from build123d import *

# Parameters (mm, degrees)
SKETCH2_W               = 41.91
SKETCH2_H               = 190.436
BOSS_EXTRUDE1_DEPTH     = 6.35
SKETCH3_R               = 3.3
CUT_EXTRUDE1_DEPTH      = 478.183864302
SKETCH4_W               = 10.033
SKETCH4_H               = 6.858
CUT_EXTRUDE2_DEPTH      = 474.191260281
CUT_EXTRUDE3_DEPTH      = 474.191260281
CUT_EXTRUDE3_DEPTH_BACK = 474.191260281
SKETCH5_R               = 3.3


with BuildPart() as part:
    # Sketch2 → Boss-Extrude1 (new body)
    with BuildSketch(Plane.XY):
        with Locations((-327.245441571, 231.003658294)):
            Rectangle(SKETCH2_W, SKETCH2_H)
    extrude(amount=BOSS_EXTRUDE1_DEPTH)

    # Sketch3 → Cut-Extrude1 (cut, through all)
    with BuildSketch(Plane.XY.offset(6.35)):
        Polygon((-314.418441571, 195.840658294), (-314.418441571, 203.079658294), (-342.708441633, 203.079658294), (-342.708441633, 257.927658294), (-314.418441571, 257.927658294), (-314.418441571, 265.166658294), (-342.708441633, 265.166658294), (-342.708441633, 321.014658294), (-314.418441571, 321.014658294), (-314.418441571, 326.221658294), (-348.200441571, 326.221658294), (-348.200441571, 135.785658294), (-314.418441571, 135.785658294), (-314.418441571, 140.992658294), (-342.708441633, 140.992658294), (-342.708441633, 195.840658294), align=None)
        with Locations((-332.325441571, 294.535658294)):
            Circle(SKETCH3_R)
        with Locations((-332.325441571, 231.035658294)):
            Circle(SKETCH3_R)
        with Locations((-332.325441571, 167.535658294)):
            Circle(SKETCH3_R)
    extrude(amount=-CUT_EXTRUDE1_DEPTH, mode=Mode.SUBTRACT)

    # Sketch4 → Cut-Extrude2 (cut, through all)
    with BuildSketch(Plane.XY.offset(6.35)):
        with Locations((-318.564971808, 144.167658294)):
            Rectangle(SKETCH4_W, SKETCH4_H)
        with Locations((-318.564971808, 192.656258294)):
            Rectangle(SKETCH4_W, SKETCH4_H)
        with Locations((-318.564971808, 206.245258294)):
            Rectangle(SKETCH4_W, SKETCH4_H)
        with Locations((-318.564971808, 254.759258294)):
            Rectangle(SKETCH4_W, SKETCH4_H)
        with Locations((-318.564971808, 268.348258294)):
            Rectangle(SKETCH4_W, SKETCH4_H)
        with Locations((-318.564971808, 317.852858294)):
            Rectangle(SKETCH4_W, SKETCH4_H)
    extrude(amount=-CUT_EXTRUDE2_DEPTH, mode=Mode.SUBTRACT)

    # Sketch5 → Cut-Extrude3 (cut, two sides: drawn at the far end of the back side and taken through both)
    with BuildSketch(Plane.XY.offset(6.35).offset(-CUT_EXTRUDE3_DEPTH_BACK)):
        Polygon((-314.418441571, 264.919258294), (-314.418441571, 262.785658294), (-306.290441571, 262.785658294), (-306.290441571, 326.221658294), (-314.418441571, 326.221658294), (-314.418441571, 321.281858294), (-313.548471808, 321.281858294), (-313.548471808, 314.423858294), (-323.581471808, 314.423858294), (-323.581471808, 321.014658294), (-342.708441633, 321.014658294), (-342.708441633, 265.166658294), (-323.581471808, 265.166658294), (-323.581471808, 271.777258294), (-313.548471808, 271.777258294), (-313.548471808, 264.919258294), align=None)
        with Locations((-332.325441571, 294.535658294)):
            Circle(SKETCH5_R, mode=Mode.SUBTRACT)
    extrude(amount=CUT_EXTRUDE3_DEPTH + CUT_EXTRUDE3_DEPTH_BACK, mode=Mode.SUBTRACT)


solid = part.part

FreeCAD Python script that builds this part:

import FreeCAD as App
import Part
import Sketcher
from FreeCAD import Vector
Q = App.Units.Quantity

doc = App.newDocument("Part")
body = doc.addObject("PartDesign::Body", "Body")

# Sketch on XY plane
sketch1 = doc.addObject("Sketcher::SketchObject", "Sketch")
body.addObject(sketch1)
sketch1.AttachmentSupport = (doc.XY_Plane, [""])
sketch1.MapMode = "FlatFace"
sketch1.addGeometry(Part.LineSegment(Vector(-348, 326, 0), Vector(-348, 136, 0)), False)
sketch1.addGeometry(Part.LineSegment(Vector(-348, 136, 0), Vector(-306, 136, 0)), False)
sketch1.addGeometry(Part.LineSegment(Vector(-306, 136, 0), Vector(-306, 326, 0)), False)
sketch1.addGeometry(Part.LineSegment(Vector(-306, 326, 0), Vector(-348, 326, 0)), False)
sketch1.addConstraint(Sketcher.Constraint("Coincident", 0, 2, 1, 1))
sketch1.addConstraint(Sketcher.Constraint("Coincident", 1, 2, 2, 1))
sketch1.addConstraint(Sketcher.Constraint("Coincident", 2, 2, 3, 1))
sketch1.addConstraint(Sketcher.Constraint("Coincident", 3, 2, 0, 1))
sketch1.addConstraint(Sketcher.Constraint("Vertical", 0))
sketch1.addConstraint(Sketcher.Constraint("Horizontal", 1))
sketch1.addConstraint(Sketcher.Constraint("Vertical", 2))
sketch1.addConstraint(Sketcher.Constraint("Horizontal", 3))
sketch1.addConstraint(Sketcher.Constraint("DistanceX", 1, 1, 1, 2, Q("1.65 in")))
sketch1.addConstraint(Sketcher.Constraint("DistanceY", 0, 2, 0, 1, Q("190.436 mm")))
sketch1.addConstraint(Sketcher.Constraint("DistanceX", 0, 2, -1, 1, Q("348.200442 mm")))
sketch1.addConstraint(Sketcher.Constraint("DistanceY", -1, 1, 0, 2, Q("135.785658 mm")))
pad1 = doc.addObject("PartDesign::Pad", "Pad")
body.addObject(pad1)
pad1.Profile = sketch1
pad1.Length = Q("0.25 in")

# Sketch on XY plane
sketch2 = doc.addObject("Sketcher::SketchObject", "Sketch001")
body.addObject(sketch2)
sketch2.AttachmentSupport = (doc.XY_Plane, [""])
sketch2.MapMode = "FlatFace"
sketch2.AttachmentOffset = App.Placement(Vector(0, 0, 0.25 * 25.4), App.Rotation())
sketch2.addGeometry(Part.LineSegment(Vector(-314.4, 195.8, 0), Vector(-314.4, 203.1, 0)), False)
sketch2.addGeometry(Part.LineSegment(Vector(-314.4, 203.1, 0), Vector(-342.7, 203.1, 0)), False)
sketch2.addGeometry(Part.LineSegment(Vector(-342.7, 203.1, 0), Vector(-342.7, 257.9, 0)), False)
sketch2.addGeometry(Part.LineSegment(Vector(-342.7, 257.9, 0), Vector(-314.4, 257.9, 0)), False)
sketch2.addGeometry(Part.LineSegment(Vector(-314.4, 257.9, 0), Vector(-314.4, 265.2, 0)), False)
sketch2.addGeometry(Part.LineSegment(Vector(-314.4, 265.2, 0), Vector(-342.7, 265.2, 0)), False)
sketch2.addGeometry(Part.LineSegment(Vector(-342.7, 265.2, 0), Vector(-342.7, 321, 0)), False)
sketch2.addGeometry(Part.LineSegment(Vector(-342.7, 321, 0), Vector(-314.4, 321, 0)), False)
sketch2.addGeometry(Part.LineSegment(Vector(-314.4, 321, 0), Vector(-314.4, 326.2, 0)), False)
sketch2.addGeometry(Part.LineSegment(Vector(-314.4, 326.2, 0), Vector(-348.2, 326.2, 0)), False)
sketch2.addGeometry(Part.LineSegment(Vector(-348.2, 326.2, 0), Vector(-348.2, 135.8, 0)), False)
sketch2.addGeometry(Part.LineSegment(Vector(-348.2, 135.8, 0), Vector(-314.4, 135.8, 0)), False)
sketch2.addGeometry(Part.LineSegment(Vector(-314.4, 135.8, 0), Vector(-314.4, 141, 0)), False)
sketch2.addGeometry(Part.LineSegment(Vector(-314.4, 141, 0), Vector(-342.7, 141, 0)), False)
sketch2.addGeometry(Part.LineSegment(Vector(-342.7, 141, 0), Vector(-342.7, 195.8, 0)), False)
sketch2.addGeometry(Part.LineSegment(Vector(-342.7, 195.8, 0), Vector(-314.4, 195.8, 0)), False)
sketch2.addGeometry(Part.Circle(Vector(-332.3, 294.5, 0), Vector(0, 0, 1), 3.3), False)
sketch2.addGeometry(Part.Circle(Vector(-332.3, 231, 0), Vector(0, 0, 1), 3.3), False)
sketch2.addGeometry(Part.Circle(Vector(-332.3, 167.5, 0), Vector(0, 0, 1), 3.3), False)
sketch2.addConstraint(Sketcher.Constraint("Coincident", 0, 2, 1, 1))
sketch2.addConstraint(Sketcher.Constraint("Coincident", 1, 2, 2, 1))
sketch2.addConstraint(Sketcher.Constraint("Coincident", 2, 2, 3, 1))
sketch2.addConstraint(Sketcher.Constraint("Coincident", 3, 2, 4, 1))
sketch2.addConstraint(Sketcher.Constraint("Coincident", 4, 2, 5, 1))
sketch2.addConstraint(Sketcher.Constraint("Coincident", 5, 2, 6, 1))
sketch2.addConstraint(Sketcher.Constraint("Coincident", 6, 2, 7, 1))
sketch2.addConstraint(Sketcher.Constraint("Coincident", 7, 2, 8, 1))
sketch2.addConstraint(Sketcher.Constraint("Coincident", 8, 2, 9, 1))
sketch2.addConstraint(Sketcher.Constraint("Coincident", 9, 2, 10, 1))
sketch2.addConstraint(Sketcher.Constraint("Coincident", 10, 2, 11, 1))
sketch2.addConstraint(Sketcher.Constraint("Coincident", 11, 2, 12, 1))
sketch2.addConstraint(Sketcher.Constraint("Coincident", 12, 2, 13, 1))
sketch2.addConstraint(Sketcher.Constraint("Coincident", 13, 2, 14, 1))
sketch2.addConstraint(Sketcher.Constraint("Coincident", 14, 2, 15, 1))
sketch2.addConstraint(Sketcher.Constraint("Coincident", 15, 2, 0, 1))
sketch2.addConstraint(Sketcher.Constraint("Vertical", 0))
sketch2.addConstraint(Sketcher.Constraint("Horizontal", 1))
sketch2.addConstraint(Sketcher.Constraint("Vertical", 2))
sketch2.addConstraint(Sketcher.Constraint("Horizontal", 3))
sketch2.addConstraint(Sketcher.Constraint("Vertical", 4))
sketch2.addConstraint(Sketcher.Constraint("Horizontal", 5))
sketch2.addConstraint(Sketcher.Constraint("Vertical", 6))
sketch2.addConstraint(Sketcher.Constraint("Horizontal", 7))
sketch2.addConstraint(Sketcher.Constraint("Vertical", 8))
sketch2.addConstraint(Sketcher.Constraint("Horizontal", 9))
sketch2.addConstraint(Sketcher.Constraint("Vertical", 10))
sketch2.addConstraint(Sketcher.Constraint("Horizontal", 11))
sketch2.addConstraint(Sketcher.Constraint("Vertical", 12))
sketch2.addConstraint(Sketcher.Constraint("Horizontal", 13))
sketch2.addConstraint(Sketcher.Constraint("Vertical", 14))
sketch2.addConstraint(Sketcher.Constraint("Horizontal", 15))
sketch2.addConstraint(Sketcher.Constraint("Equal", 16, 17))
sketch2.addConstraint(Sketcher.Constraint("Equal", 17, 18))
sketch2.addConstraint(Sketcher.Constraint("Vertical", 16, 3, 17, 3))
sketch2.addConstraint(Sketcher.Constraint("Vertical", 17, 3, 18, 3))
sketch2.addConstraint(Sketcher.Constraint("Vertical", 0, 2, 3, 2))
sketch2.addConstraint(Sketcher.Constraint("Vertical", 2, 2, 5, 2))
sketch2.addConstraint(Sketcher.Constraint("Vertical", 4, 2, 7, 2))
sketch2.addConstraint(Sketcher.Constraint("Vertical", 8, 2, 11, 2))
sketch2.addConstraint(Sketcher.Constraint("Vertical", 6, 2, 13, 2))
sketch2.addConstraint(Sketcher.Constraint("Equal", 0, 4))
sketch2.addConstraint(Sketcher.Constraint("Equal", 8, 12))
sketch2.addConstraint(Sketcher.Constraint("Equal", 2, 14))
sketch2.addConstraint(Sketcher.Constraint("DistanceY", 18, 3, 16, 3, Q("5 in")))
sketch2.addConstraint(Sketcher.Constraint("DistanceX", 9, 2, 9, 1, Q("1.33 in")))
sketch2.addConstraint(Sketcher.Constraint("DistanceY", 17, 3, 16, 3, Q("2.5 in")))
sketch2.addConstraint(Sketcher.Constraint("Diameter", 16, Q("6.6 mm")))
sketch2.addConstraint(Sketcher.Constraint("DistanceY", 0, 1, 0, 2, Q("0.285 in")))
sketch2.addConstraint(Sketcher.Constraint("DistanceY", 8, 1, 8, 2, Q("0.205 in")))
sketch2.addConstraint(Sketcher.Constraint("DistanceY", 10, 2, 18, 3, Q("1.25 in")))
sketch2.addConstraint(Sketcher.Constraint("DistanceX", 17, 3, 0, 2, Q("0.705 in")))
sketch2.addConstraint(Sketcher.Constraint("DistanceX", 1, 2, 1, 1, Q("28.29 mm")))
sketch2.addConstraint(Sketcher.Constraint("DistanceY", 2, 1, 2, 2, Q("54.848 mm")))
sketch2.addConstraint(Sketcher.Constraint("DistanceY", 6, 1, 6, 2, Q("55.848 mm")))
sketch2.addConstraint(Sketcher.Constraint("DistanceX", 16, 3, -1, 1, Q("332.325442 mm")))
sketch2.addConstraint(Sketcher.Constraint("DistanceY", -1, 1, 16, 3, Q("294.535658 mm")))
pocket1 = doc.addObject("PartDesign::Pocket", "Pocket")
body.addObject(pocket1)
pocket1.Profile = sketch2
pocket1.Type = "ThroughAll"

# Sketch on XY plane
sketch3 = doc.addObject("Sketcher::SketchObject", "Sketch002")
body.addObject(sketch3)
sketch3.AttachmentSupport = (doc.XY_Plane, [""])
sketch3.MapMode = "FlatFace"
sketch3.AttachmentOffset = App.Placement(Vector(0, 0, 0.25 * 25.4), App.Rotation())
sketch3.addGeometry(Part.LineSegment(Vector(-324, 148, 0), Vector(-324, 141, 0)), False)
sketch3.addGeometry(Part.LineSegment(Vector(-324, 141, 0), Vector(-314, 141, 0)), False)
sketch3.addGeometry(Part.LineSegment(Vector(-314, 141, 0), Vector(-314, 148, 0)), False)
sketch3.addGeometry(Part.LineSegment(Vector(-314, 148, 0), Vector(-324, 148, 0)), False)
sketch3.addGeometry(Part.LineSegment(Vector(-324, 196, 0), Vector(-324, 189, 0)), False)
sketch3.addGeometry(Part.LineSegment(Vector(-324, 189, 0), Vector(-314, 189, 0)), False)
sketch3.addGeometry(Part.LineSegment(Vector(-314, 189, 0), Vector(-314, 196, 0)), False)
sketch3.addGeometry(Part.LineSegment(Vector(-314, 196, 0), Vector(-324, 196, 0)), False)
sketch3.addGeometry(Part.LineSegment(Vector(-324, 210, 0), Vector(-324, 203, 0)), False)
sketch3.addGeometry(Part.LineSegment(Vector(-324, 203, 0), Vector(-314, 203, 0)), False)
sketch3.addGeometry(Part.LineSegment(Vector(-314, 203, 0), Vector(-314, 210, 0)), False)
sketch3.addGeometry(Part.LineSegment(Vector(-314, 210, 0), Vector(-324, 210, 0)), False)
sketch3.addGeometry(Part.LineSegment(Vector(-324, 258, 0), Vector(-324, 251, 0)), False)
sketch3.addGeometry(Part.LineSegment(Vector(-324, 251, 0), Vector(-314, 251, 0)), False)
sketch3.addGeometry(Part.LineSegment(Vector(-314, 251, 0), Vector(-314, 258, 0)), False)
sketch3.addGeometry(Part.LineSegment(Vector(-314, 258, 0), Vector(-324, 258, 0)), False)
sketch3.addGeometry(Part.LineSegment(Vector(-324, 272, 0), Vector(-324, 265, 0)), False)
sketch3.addGeometry(Part.LineSegment(Vector(-324, 265, 0), Vector(-314, 265, 0)), False)
sketch3.addGeometry(Part.LineSegment(Vector(-314, 265, 0), Vector(-314, 272, 0)), False)
sketch3.addGeometry(Part.LineSegment(Vector(-314, 272, 0), Vector(-324, 272, 0)), False)
sketch3.addGeometry(Part.LineSegment(Vector(-324, 321, 0), Vector(-324, 314, 0)), False)
sketch3.addGeometry(Part.LineSegment(Vector(-324, 314, 0), Vector(-314, 314, 0)), False)
sketch3.addGeometry(Part.LineSegment(Vector(-314, 314, 0), Vector(-314, 321, 0)), False)
sketch3.addGeometry(Part.LineSegment(Vector(-314, 321, 0), Vector(-324, 321, 0)), False)
sketch3.addConstraint(Sketcher.Constraint("Coincident", 0, 2, 1, 1))
sketch3.addConstraint(Sketcher.Constraint("Coincident", 1, 2, 2, 1))
sketch3.addConstraint(Sketcher.Constraint("Coincident", 2, 2, 3, 1))
sketch3.addConstraint(Sketcher.Constraint("Coincident", 3, 2, 0, 1))
sketch3.addConstraint(Sketcher.Constraint("Coincident", 4, 2, 5, 1))
sketch3.addConstraint(Sketcher.Constraint("Coincident", 5, 2, 6, 1))
sketch3.addConstraint(Sketcher.Constraint("Coincident", 6, 2, 7, 1))
sketch3.addConstraint(Sketcher.Constraint("Coincident", 7, 2, 4, 1))
sketch3.addConstraint(Sketcher.Constraint("Coincident", 8, 2, 9, 1))
sketch3.addConstraint(Sketcher.Constraint("Coincident", 9, 2, 10, 1))
sketch3.addConstraint(Sketcher.Constraint("Coincident", 10, 2, 11, 1))
sketch3.addConstraint(Sketcher.Constraint("Coincident", 11, 2, 8, 1))
sketch3.addConstraint(Sketcher.Constraint("Coincident", 12, 2, 13, 1))
sketch3.addConstraint(Sketcher.Constraint("Coincident", 13, 2, 14, 1))
sketch3.addConstraint(Sketcher.Constraint("Coincident", 14, 2, 15, 1))
sketch3.addConstraint(Sketcher.Constraint("Coincident", 15, 2, 12, 1))
sketch3.addConstraint(Sketcher.Constraint("Coincident", 16, 2, 17, 1))
sketch3.addConstraint(Sketcher.Constraint("Coincident", 17, 2, 18, 1))
sketch3.addConstraint(Sketcher.Constraint("Coincident", 18, 2, 19, 1))
sketch3.addConstraint(Sketcher.Constraint("Coincident", 19, 2, 16, 1))
sketch3.addConstraint(Sketcher.Constraint("Coincident", 20, 2, 21, 1))
sketch3.addConstraint(Sketcher.Constraint("Coincident", 21, 2, 22, 1))
sketch3.addConstraint(Sketcher.Constraint("Coincident", 22, 2, 23, 1))
sketch3.addConstraint(Sketcher.Constraint("Coincident", 23, 2, 20, 1))
sketch3.addConstraint(Sketcher.Constraint("Vertical", 0))
sketch3.addConstraint(Sketcher.Constraint("Horizontal", 1))
sketch3.addConstraint(Sketcher.Constraint("Vertical", 2))
sketch3.addConstraint(Sketcher.Constraint("Horizontal", 3))
sketch3.addConstraint(Sketcher.Constraint("Vertical", 4))
sketch3.addConstraint(Sketcher.Constraint("Horizontal", 5))
sketch3.addConstraint(Sketcher.Constraint("Vertical", 6))
sketch3.addConstraint(Sketcher.Constraint("Horizontal", 7))
sketch3.addConstraint(Sketcher.Constraint("Vertical", 8))
sketch3.addConstraint(Sketcher.Constraint("Horizontal", 9))
sketch3.addConstraint(Sketcher.Constraint("Vertical", 10))
sketch3.addConstraint(Sketcher.Constraint("Horizontal", 11))
sketch3.addConstraint(Sketcher.Constraint("Vertical", 12))
sketch3.addConstraint(Sketcher.Constraint("Horizontal", 13))
sketch3.addConstraint(Sketcher.Constraint("Vertical", 14))
sketch3.addConstraint(Sketcher.Constraint("Horizontal", 15))
sketch3.addConstraint(Sketcher.Constraint("Vertical", 16))
sketch3.addConstraint(Sketcher.Constraint("Horizontal", 17))
sketch3.addConstraint(Sketcher.Constraint("Vertical", 18))
sketch3.addConstraint(Sketcher.Constraint("Horizontal", 19))
sketch3.addConstraint(Sketcher.Constraint("Vertical", 20))
sketch3.addConstraint(Sketcher.Constraint("Horizontal", 21))
sketch3.addConstraint(Sketcher.Constraint("Vertical", 22))
sketch3.addConstraint(Sketcher.Constraint("Horizontal", 23))
sketch3.addConstraint(Sketcher.Constraint("Vertical", 3, 2, 4, 2))
sketch3.addConstraint(Sketcher.Constraint("Vertical", 2, 2, 5, 2))
sketch3.addConstraint(Sketcher.Constraint("Vertical", 7, 2, 8, 2))
sketch3.addConstraint(Sketcher.Constraint("Vertical", 6, 2, 9, 2))
sketch3.addConstraint(Sketcher.Constraint("Vertical", 11, 2, 12, 2))
sketch3.addConstraint(Sketcher.Constraint("Vertical", 10, 2, 13, 2))
sketch3.addConstraint(Sketcher.Constraint("Vertical", 15, 2, 16, 2))
sketch3.addConstraint(Sketcher.Constraint("Vertical", 14, 2, 17, 2))
sketch3.addConstraint(Sketcher.Constraint("Vertical", 19, 2, 20, 2))
sketch3.addConstraint(Sketcher.Constraint("Vertical", 18, 2, 21, 2))
sketch3.addConstraint(Sketcher.Constraint("Equal", 2, 4))
sketch3.addConstraint(Sketcher.Constraint("Equal", 6, 8))
sketch3.addConstraint(Sketcher.Constraint("Equal", 10, 12))
sketch3.addConstraint(Sketcher.Constraint("Equal", 14, 16))
sketch3.addConstraint(Sketcher.Constraint("Equal", 18, 20))
sketch3.addConstraint(Sketcher.Constraint("DistanceY", 0, 2, 0, 1, Q("0.27 in")))
sketch3.addConstraint(Sketcher.Constraint("DistanceX", 1, 1, 1, 2, Q("0.395 in")))
sketch3.addConstraint(Sketcher.Constraint("DistanceY", 11, 2, 12, 2, Q("1.64 in")))
sketch3.addConstraint(Sketcher.Constraint("DistanceY", 3, 2, 4, 2, Q("1.639 in")))
sketch3.addConstraint(Sketcher.Constraint("DistanceY", 7, 2, 8, 2, Q("0.265 in")))
sketch3.addConstraint(Sketcher.Constraint("DistanceY", 15, 2, 16, 2, Q("0.265 in")))
sketch3.addConstraint(Sketcher.Constraint("DistanceY", 19, 2, 20, 2, Q("1.679 in")))
sketch3.addConstraint(Sketcher.Constraint("DistanceX", 0, 2, -1, 1, Q("323.581472 mm")))
sketch3.addConstraint(Sketcher.Constraint("DistanceY", -1, 1, 0, 2, Q("140.738658 mm")))
pocket2 = doc.addObject("PartDesign::Pocket", "Pocket001")
body.addObject(pocket2)
pocket2.Profile = sketch3
pocket2.Type = "ThroughAll"

# Sketch on XY plane
sketch4 = doc.addObject("Sketcher::SketchObject", "Sketch003")
body.addObject(sketch4)
sketch4.AttachmentSupport = (doc.XY_Plane, [""])
sketch4.MapMode = "FlatFace"
sketch4.AttachmentOffset = App.Placement(Vector(0, 0, 0.25 * 25.4), App.Rotation())
sketch4.addGeometry(Part.LineSegment(Vector(-314.4, 264.9, 0), Vector(-314.4, 262.8, 0)), False)
sketch4.addGeometry(Part.LineSegment(Vector(-314.4, 262.8, 0), Vector(-306.3, 262.8, 0)), False)
sketch4.addGeometry(Part.LineSegment(Vector(-306.3, 262.8, 0), Vector(-306.3, 326.2, 0)), False)
sketch4.addGeometry(Part.LineSegment(Vector(-306.3, 326.2, 0), Vector(-314.4, 326.2, 0)), False)
sketch4.addGeometry(Part.LineSegment(Vector(-314.4, 326.2, 0), Vector(-314.4, 321.3, 0)), False)
sketch4.addGeometry(Part.LineSegment(Vector(-314.4, 321.3, 0), Vector(-313.5, 321.3, 0)), False)
sketch4.addGeometry(Part.LineSegment(Vector(-313.5, 321.3, 0), Vector(-313.5, 314.4, 0)), False)
sketch4.addGeometry(Part.LineSegment(Vector(-313.5, 314.4, 0), Vector(-323.6, 314.4, 0)), False)
sketch4.addGeometry(Part.LineSegment(Vector(-323.6, 314.4, 0), Vector(-323.6, 321, 0)), False)
sketch4.addGeometry(Part.LineSegment(Vector(-323.6, 321, 0), Vector(-342.7, 321, 0)), False)
sketch4.addGeometry(Part.LineSegment(Vector(-342.7, 321, 0), Vector(-342.7, 265.2, 0)), False)
sketch4.addGeometry(Part.LineSegment(Vector(-342.7, 265.2, 0), Vector(-323.6, 265.2, 0)), False)
sketch4.addGeometry(Part.LineSegment(Vector(-323.6, 265.2, 0), Vector(-323.6, 271.8, 0)), False)
sketch4.addGeometry(Part.LineSegment(Vector(-323.6, 271.8, 0), Vector(-313.5, 271.8, 0)), False)
sketch4.addGeometry(Part.LineSegment(Vector(-313.5, 271.8, 0), Vector(-313.5, 264.9, 0)), False)
sketch4.addGeometry(Part.LineSegment(Vector(-313.5, 264.9, 0), Vector(-314.4, 264.9, 0)), False)
sketch4.addGeometry(Part.Circle(Vector(-332.3, 294.5, 0), Vector(0, 0, 1), 3.3), False)
sketch4.addConstraint(Sketcher.Constraint("Coincident", 0, 2, 1, 1))
sketch4.addConstraint(Sketcher.Constraint("Coincident", 1, 2, 2, 1))
sketch4.addConstraint(Sketcher.Constraint("Coincident", 2, 2, 3, 1))
sketch4.addConstraint(Sketcher.Constraint("Coincident", 3, 2, 4, 1))
sketch4.addConstraint(Sketcher.Constraint("Coincident", 4, 2, 5, 1))
sketch4.addConstraint(Sketcher.Constraint("Coincident", 5, 2, 6, 1))
sketch4.addConstraint(Sketcher.Constraint("Coincident", 6, 2, 7, 1))
sketch4.addConstraint(Sketcher.Constraint("Coincident", 7, 2, 8, 1))
sketch4.addConstraint(Sketcher.Constraint("Coincident", 8, 2, 9, 1))
sketch4.addConstraint(Sketcher.Constraint("Coincident", 9, 2, 10, 1))
sketch4.addConstraint(Sketcher.Constraint("Coincident", 10, 2, 11, 1))
sketch4.addConstraint(Sketcher.Constraint("Coincident", 11, 2, 12, 1))
sketch4.addConstraint(Sketcher.Constraint("Coincident", 12, 2, 13, 1))
sketch4.addConstraint(Sketcher.Constraint("Coincident", 13, 2, 14, 1))
sketch4.addConstraint(Sketcher.Constraint("Coincident", 14, 2, 15, 1))
sketch4.addConstraint(Sketcher.Constraint("Coincident", 15, 2, 0, 1))
sketch4.addConstraint(Sketcher.Constraint("Vertical", 0))
sketch4.addConstraint(Sketcher.Constraint("Horizontal", 1))
sketch4.addConstraint(Sketcher.Constraint("Vertical", 2))
sketch4.addConstraint(Sketcher.Constraint("Horizontal", 3))
sketch4.addConstraint(Sketcher.Constraint("Vertical", 4))
sketch4.addConstraint(Sketcher.Constraint("Horizontal", 5))
sketch4.addConstraint(Sketcher.Constraint("Vertical", 6))
sketch4.addConstraint(Sketcher.Constraint("Horizontal", 7))
sketch4.addConstraint(Sketcher.Constraint("Vertical", 8))
sketch4.addConstraint(Sketcher.Constraint("Horizontal", 9))
sketch4.addConstraint(Sketcher.Constraint("Vertical", 10))
sketch4.addConstraint(Sketcher.Constraint("Horizontal", 11))
sketch4.addConstraint(Sketcher.Constraint("Vertical", 12))
sketch4.addConstraint(Sketcher.Constraint("Horizontal", 13))
sketch4.addConstraint(Sketcher.Constraint("Vertical", 14))
sketch4.addConstraint(Sketcher.Constraint("Horizontal", 15))
sketch4.addConstraint(Sketcher.Constraint("Vertical", 0, 2, 3, 2))
sketch4.addConstraint(Sketcher.Constraint("Vertical", 8, 2, 11, 2))
sketch4.addConstraint(Sketcher.Constraint("Vertical", 6, 2, 13, 2))
sketch4.addConstraint(Sketcher.Constraint("Equal", 6, 14))
sketch4.addConstraint(Sketcher.Constraint("DistanceX", 1, 1, 1, 2, Q("0.32 in")))
sketch4.addConstraint(Sketcher.Constraint("DistanceY", 6, 2, 6, 1, Q("0.27 in")))
sketch4.addConstraint(Sketcher.Constraint("Diameter", 16, Q("6.6 mm")))
sketch4.addConstraint(Sketcher.Constraint("DistanceX", 7, 2, 7, 1, Q("0.395 in")))
sketch4.addConstraint(Sketcher.Constraint("DistanceY", 0, 2, 0, 1, Q("0.084 in")))
sketch4.addConstraint(Sketcher.Constraint("DistanceY", 0, 2, 16, 3, Q("1.25 in")))
sketch4.addConstraint(Sketcher.Constraint("DistanceX", 16, 3, 0, 2, Q("0.705 in")))
sketch4.addConstraint(Sketcher.Constraint("DistanceY", 16, 3, 4, 2, Q("1.053 in")))
sketch4.addConstraint(Sketcher.Constraint("DistanceY", 8, 2, 3, 2, Q("0.205 in")))
sketch4.addConstraint(Sketcher.Constraint("DistanceY", 2, 1, 2, 2, Q("63.436 mm")))
sketch4.addConstraint(Sketcher.Constraint("DistanceY", 10, 2, 10, 1, Q("55.848 mm")))
sketch4.addConstraint(Sketcher.Constraint("DistanceX", 5, 1, 5, 2, Q("0.86997 mm")))
sketch4.addConstraint(Sketcher.Constraint("DistanceX", 9, 2, 9, 1, Q("19.12697 mm")))
sketch4.addConstraint(Sketcher.Constraint("DistanceX", 16, 3, -1, 1, Q("332.325442 mm")))
sketch4.addConstraint(Sketcher.Constraint("DistanceY", -1, 1, 16, 3, Q("294.535658 mm")))
pocket3 = doc.addObject("PartDesign::Pocket", "Pocket002")
body.addObject(pocket3)
pocket3.Profile = sketch4
pocket3.Type = "ThroughAll"
pocket3.Midplane = True

doc.recompute()
